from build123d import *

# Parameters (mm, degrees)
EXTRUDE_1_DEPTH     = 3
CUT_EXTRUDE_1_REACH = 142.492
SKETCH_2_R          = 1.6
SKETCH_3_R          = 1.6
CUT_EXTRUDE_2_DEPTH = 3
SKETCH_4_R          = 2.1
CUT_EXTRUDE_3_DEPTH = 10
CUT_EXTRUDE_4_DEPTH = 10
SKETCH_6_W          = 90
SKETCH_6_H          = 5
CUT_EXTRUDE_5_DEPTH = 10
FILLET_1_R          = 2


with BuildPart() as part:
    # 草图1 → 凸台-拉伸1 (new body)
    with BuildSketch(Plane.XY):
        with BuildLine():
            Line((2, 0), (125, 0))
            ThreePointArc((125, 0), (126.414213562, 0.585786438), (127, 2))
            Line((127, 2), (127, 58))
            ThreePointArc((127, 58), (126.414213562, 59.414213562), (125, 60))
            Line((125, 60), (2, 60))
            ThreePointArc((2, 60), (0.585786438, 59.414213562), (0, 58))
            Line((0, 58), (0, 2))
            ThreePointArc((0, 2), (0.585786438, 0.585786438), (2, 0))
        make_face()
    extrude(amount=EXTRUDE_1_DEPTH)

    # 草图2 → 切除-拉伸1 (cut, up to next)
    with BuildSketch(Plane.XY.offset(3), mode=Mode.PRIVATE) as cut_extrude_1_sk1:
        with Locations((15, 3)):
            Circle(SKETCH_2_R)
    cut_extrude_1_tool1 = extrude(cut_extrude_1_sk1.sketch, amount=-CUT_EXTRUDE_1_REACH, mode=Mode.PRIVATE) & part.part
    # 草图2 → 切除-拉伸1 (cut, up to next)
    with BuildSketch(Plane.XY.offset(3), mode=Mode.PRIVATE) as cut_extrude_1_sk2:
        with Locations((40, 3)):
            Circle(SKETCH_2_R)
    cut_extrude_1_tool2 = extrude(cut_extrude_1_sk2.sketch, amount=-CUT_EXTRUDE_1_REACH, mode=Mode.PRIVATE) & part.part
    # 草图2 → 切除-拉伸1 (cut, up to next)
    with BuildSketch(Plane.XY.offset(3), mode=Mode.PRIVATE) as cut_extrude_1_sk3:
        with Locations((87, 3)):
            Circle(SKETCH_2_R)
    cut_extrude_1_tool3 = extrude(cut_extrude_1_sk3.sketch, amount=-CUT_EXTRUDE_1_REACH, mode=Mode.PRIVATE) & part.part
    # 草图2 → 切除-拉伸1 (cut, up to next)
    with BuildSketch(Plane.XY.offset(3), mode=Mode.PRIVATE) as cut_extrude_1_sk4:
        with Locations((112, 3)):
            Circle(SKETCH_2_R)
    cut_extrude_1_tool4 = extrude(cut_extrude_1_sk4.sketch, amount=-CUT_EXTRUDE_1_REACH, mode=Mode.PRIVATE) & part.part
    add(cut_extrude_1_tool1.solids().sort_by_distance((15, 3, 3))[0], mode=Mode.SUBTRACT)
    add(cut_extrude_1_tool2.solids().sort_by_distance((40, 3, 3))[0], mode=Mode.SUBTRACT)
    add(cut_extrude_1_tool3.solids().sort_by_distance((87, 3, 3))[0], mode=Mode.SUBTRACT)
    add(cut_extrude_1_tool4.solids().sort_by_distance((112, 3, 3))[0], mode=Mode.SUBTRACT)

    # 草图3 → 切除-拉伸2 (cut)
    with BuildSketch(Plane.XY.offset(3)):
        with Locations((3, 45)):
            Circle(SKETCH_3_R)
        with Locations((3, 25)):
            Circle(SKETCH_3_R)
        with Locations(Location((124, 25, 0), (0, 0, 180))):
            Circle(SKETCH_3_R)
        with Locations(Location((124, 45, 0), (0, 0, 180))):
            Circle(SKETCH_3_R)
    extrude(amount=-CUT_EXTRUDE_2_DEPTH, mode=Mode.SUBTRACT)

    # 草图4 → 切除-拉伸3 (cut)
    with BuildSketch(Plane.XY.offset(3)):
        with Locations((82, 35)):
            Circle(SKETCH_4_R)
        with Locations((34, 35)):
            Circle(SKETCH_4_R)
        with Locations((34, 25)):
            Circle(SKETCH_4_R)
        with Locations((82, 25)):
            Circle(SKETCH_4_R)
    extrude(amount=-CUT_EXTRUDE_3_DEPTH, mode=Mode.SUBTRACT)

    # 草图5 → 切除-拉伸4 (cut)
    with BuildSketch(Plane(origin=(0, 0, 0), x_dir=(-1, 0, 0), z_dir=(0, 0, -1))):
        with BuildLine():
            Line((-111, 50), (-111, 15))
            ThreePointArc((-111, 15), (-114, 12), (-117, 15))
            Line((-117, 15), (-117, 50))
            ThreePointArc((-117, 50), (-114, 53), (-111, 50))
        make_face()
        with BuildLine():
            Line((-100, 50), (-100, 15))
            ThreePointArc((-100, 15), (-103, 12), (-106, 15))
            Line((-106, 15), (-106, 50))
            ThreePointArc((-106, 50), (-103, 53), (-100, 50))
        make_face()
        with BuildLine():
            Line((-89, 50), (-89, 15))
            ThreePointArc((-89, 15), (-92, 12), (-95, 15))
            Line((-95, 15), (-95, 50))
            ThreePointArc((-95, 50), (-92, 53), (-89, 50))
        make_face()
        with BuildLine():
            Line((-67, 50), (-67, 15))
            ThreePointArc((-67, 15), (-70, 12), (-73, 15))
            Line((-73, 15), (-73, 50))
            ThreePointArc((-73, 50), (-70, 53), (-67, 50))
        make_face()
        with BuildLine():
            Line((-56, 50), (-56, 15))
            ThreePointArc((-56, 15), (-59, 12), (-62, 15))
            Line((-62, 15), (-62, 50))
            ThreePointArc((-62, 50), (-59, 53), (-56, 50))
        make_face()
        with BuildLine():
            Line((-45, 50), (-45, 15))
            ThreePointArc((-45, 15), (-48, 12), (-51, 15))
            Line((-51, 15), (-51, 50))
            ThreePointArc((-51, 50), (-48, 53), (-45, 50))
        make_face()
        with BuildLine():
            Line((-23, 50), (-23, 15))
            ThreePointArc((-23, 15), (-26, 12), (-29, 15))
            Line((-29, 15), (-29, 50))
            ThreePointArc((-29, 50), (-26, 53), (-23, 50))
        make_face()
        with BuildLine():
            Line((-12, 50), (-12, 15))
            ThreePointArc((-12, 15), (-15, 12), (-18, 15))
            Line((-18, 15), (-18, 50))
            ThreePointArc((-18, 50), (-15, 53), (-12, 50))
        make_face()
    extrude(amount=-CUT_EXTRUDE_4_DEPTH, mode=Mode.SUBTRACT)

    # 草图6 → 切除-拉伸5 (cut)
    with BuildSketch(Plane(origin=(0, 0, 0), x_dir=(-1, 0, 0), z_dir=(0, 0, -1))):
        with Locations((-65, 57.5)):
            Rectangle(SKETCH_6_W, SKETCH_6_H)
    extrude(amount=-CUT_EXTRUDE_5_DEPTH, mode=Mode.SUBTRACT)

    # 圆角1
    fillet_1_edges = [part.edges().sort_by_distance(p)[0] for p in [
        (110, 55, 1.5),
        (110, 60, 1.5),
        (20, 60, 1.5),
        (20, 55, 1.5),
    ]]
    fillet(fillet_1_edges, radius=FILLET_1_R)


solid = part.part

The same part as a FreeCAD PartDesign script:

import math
import FreeCAD as App
import Part
import Sketcher
from FreeCAD import Vector
Q = App.Units.Quantity


def edges_at(feature, points):
    """Names of the edges that pass closest to the given points."""
    edges = feature.Shape.Edges
    near = lambda p: min(range(len(edges)), key=lambda i: edges[i].distToShape(Part.Vertex(*p))[0])
    return sorted({f"Edge{near(p) + 1}" for p in points})


def add_polygon(sketch, points):
    """Adds a closed chain of lines whose ends are joined by coincident constraints."""
    first, n = sketch.GeometryCount, len(points)
    for a, b in zip(points, points[1:] + points[:1]):
        sketch.addGeometry(Part.LineSegment(App.Vector(*a, 0), App.Vector(*b, 0)), False)
    for i in range(n):
        sketch.addConstraint(Sketcher.Constraint("Coincident", first + i, 2, first + (i + 1) % n, 1))

doc = App.newDocument("Part")
params = doc.addObject("Spreadsheet::Sheet", "Params")
for row, (alias, value) in enumerate([
    ("sketch1_radius", "2 mm"),
    ("sketch1_width", "123 mm"),
    ("sketch1_height", "56 mm"),
    ("pad1_length", "3 mm"),
    ("sketch2_diameter", "3.2 mm"),
    ("sketch3_diameter", "3.2 mm"),
    ("sketch4_diameter", "3.2 mm"),
    ("sketch5_diameter", "3.2 mm"),
    ("sketch6_diameter", "3.2 mm"),
    ("pocket5_length", "3 mm"),
    ("sketch7_diameter", "4.2 mm"),
    ("pocket6_length", "10 mm"),
    ("sketch8_radius", "3 mm"),
    ("sketch8_height", "35 mm"),
    ("pocket7_length", "10 mm"),
    ("sketch9_width", "90 mm"),
    ("sketch9_height", "5 mm"),
    ("pocket8_length", "10 mm"),
    ("fillet_radius", "2 mm"),
], start=1):
    params.set(f"A{row}", alias)
    params.set(f"B{row}", "=" + value)
    params.setAlias(f"B{row}", alias)

body = doc.addObject("PartDesign::Body", "Body")

sketch1 = body.newObject("Sketcher::SketchObject", "Sketch")
sketch1.AttachmentSupport = (doc.getObject("XY_Plane"), [""])
sketch1.MapMode = "FlatFace"
sketch1.addGeometry(Part.LineSegment(Vector(2, 0, 0), Vector(125, 0, 0)), False)
sketch1.addGeometry(Part.ArcOfCircle(Part.Circle(Vector(125, 2, 0), Vector(0, 0, 1), 2), math.radians(-90), math.radians(0)), False)
sketch1.addGeometry(Part.LineSegment(Vector(127, 2, 0), Vector(127, 58, 0)), False)
sketch1.addGeometry(Part.ArcOfCircle(Part.Circle(Vector(125, 58, 0), Vector(0, 0, 1), 2), math.radians(0), math.radians(90)), False)
sketch1.addGeometry(Part.LineSegment(Vector(125, 60, 0), Vector(2, 60, 0)), False)
sketch1.addGeometry(Part.ArcOfCircle(Part.Circle(Vector(2, 58, 0), Vector(0, 0, 1), 2), math.radians(90), math.radians(180)), False)
sketch1.addGeometry(Part.LineSegment(Vector(0, 58, 0), Vector(0, 2, 0)), False)
sketch1.addGeometry(Part.ArcOfCircle(Part.Circle(Vector(2, 2, 0), Vector(0, 0, 1), 2), math.radians(-180), math.radians(-90)), False)
sketch1.addConstraint(Sketcher.Constraint("Tangent", 0, 2, 1, 1))
sketch1.addConstraint(Sketcher.Constraint("Tangent", 1, 2, 2, 1))
sketch1.addConstraint(Sketcher.Constraint("Tangent", 2, 2, 3, 1))
sketch1.addConstraint(Sketcher.Constraint("Tangent", 3, 2, 4, 1))
sketch1.addConstraint(Sketcher.Constraint("Tangent", 4, 2, 5, 1))
sketch1.addConstraint(Sketcher.Constraint("Tangent", 5, 2, 6, 1))
sketch1.addConstraint(Sketcher.Constraint("Tangent", 6, 2, 7, 1))
sketch1.addConstraint(Sketcher.Constraint("Tangent", 7, 2, 0, 1))
sketch1.addConstraint(Sketcher.Constraint("Horizontal", 0))
sketch1.addConstraint(Sketcher.Constraint("Vertical", 2))
sketch1.addConstraint(Sketcher.Constraint("Horizontal", 4))
sketch1.addConstraint(Sketcher.Constraint("Vertical", 6))
sketch1.addConstraint(Sketcher.Constraint("Equal", 1, 3))
sketch1.addConstraint(Sketcher.Constraint("Equal", 3, 5))
sketch1.addConstraint(Sketcher.Constraint("Equal", 5, 7))
sketch1.addConstraint(Sketcher.Constraint("PointOnObject", 0, 2, -1))
sketch1.addConstraint(Sketcher.Constraint("PointOnObject", 5, 2, -2))
sketch1.addConstraint(Sketcher.Constraint("Radius", 1, Q("2 mm")))
sketch1.addConstraint(Sketcher.Constraint("DistanceX", 0, 1, 0, 2, Q("123 mm")))
sketch1.addConstraint(Sketcher.Constraint("DistanceY", 2, 1, 2, 2, Q("56 mm")))
sketch1.setExpression("Constraints[17]", "Params.sketch1_radius")
sketch1.setExpression("Constraints[18]", "Params.sketch1_width")
sketch1.setExpression("Constraints[19]", "Params.sketch1_height")
pad1 = body.newObject("PartDesign::Pad", "Pad")
pad1.Profile = sketch1
pad1.setExpression("Length", "Params.pad1_length")

sketch2 = body.newObject("Sketcher::SketchObject", "Sketch001")
sketch2.AttachmentSupport = (doc.getObject("XY_Plane"), [""])
sketch2.MapMode = "FlatFace"
sketch2.AttachmentOffset = App.Placement(Vector(0, 0, 3), App.Rotation())
sketch2.addGeometry(Part.Circle(Vector(15, 3, 0), Vector(0, 0, 1), 1.6), False)
sketch2.addConstraint(Sketcher.Constraint("Diameter", 0, Q("3.2 mm")))
sketch2.addConstraint(Sketcher.Constraint("DistanceX", -1, 1, 0, 3, Q("15 mm")))
sketch2.addConstraint(Sketcher.Constraint("DistanceY", -1, 1, 0, 3, Q("3 mm")))
sketch2.setExpression("Constraints[0]", "Params.sketch2_diameter")
pocket1 = body.newObject("PartDesign::Pocket", "Pocket")
pocket1.Profile = sketch2
pocket1.Type = "UpToFirst"

sketch3 = body.newObject("Sketcher::SketchObject", "Sketch002")
sketch3.AttachmentSupport = (doc.getObject("XY_Plane"), [""])
sketch3.MapMode = "FlatFace"
sketch3.AttachmentOffset = App.Placement(Vector(0, 0, 3), App.Rotation())
sketch3.addGeometry(Part.Circle(Vector(40, 3, 0), Vector(0, 0, 1), 1.6), False)
sketch3.addConstraint(Sketcher.Constraint("Diameter", 0, Q("3.2 mm")))
sketch3.addConstraint(Sketcher.Constraint("DistanceX", -1, 1, 0, 3, Q("40 mm")))
sketch3.addConstraint(Sketcher.Constraint("DistanceY", -1, 1, 0, 3, Q("3 mm")))
sketch3.setExpression("Constraints[0]", "Params.sketch3_diameter")
pocket2 = body.newObject("PartDesign::Pocket", "Pocket001")
pocket2.Profile = sketch3
pocket2.Type = "UpToFirst"

sketch4 = body.newObject("Sketcher::SketchObject", "Sketch003")
sketch4.AttachmentSupport = (doc.getObject("XY_Plane"), [""])
sketch4.MapMode = "FlatFace"
sketch4.AttachmentOffset = App.Placement(Vector(0, 0, 3), App.Rotation())
sketch4.addGeometry(Part.Circle(Vector(87, 3, 0), Vector(0, 0, 1), 1.6), False)
sketch4.addConstraint(Sketcher.Constraint("Diameter", 0, Q("3.2 mm")))
sketch4.addConstraint(Sketcher.Constraint("DistanceX", -1, 1, 0, 3, Q("87 mm")))
sketch4.addConstraint(Sketcher.Constraint("DistanceY", -1, 1, 0, 3, Q("3 mm")))
sketch4.setExpression("Constraints[0]", "Params.sketch4_diameter")
pocket3 = body.newObject("PartDesign::Pocket", "Pocket002")
pocket3.Profile = sketch4
pocket3.Type = "UpToFirst"

sketch5 = body.newObject("Sketcher::SketchObject", "Sketch004")
sketch5.AttachmentSupport = (doc.getObject("XY_Plane"), [""])
sketch5.MapMode = "FlatFace"
sketch5.AttachmentOffset = App.Placement(Vector(0, 0, 3), App.Rotation())
sketch5.addGeometry(Part.Circle(Vector(112, 3, 0), Vector(0, 0, 1), 1.6), False)
sketch5.addConstraint(Sketcher.Constraint("Diameter", 0, Q("3.2 mm")))
sketch5.addConstraint(Sketcher.Constraint("DistanceX", -1, 1, 0, 3, Q("112 mm")))
sketch5.addConstraint(Sketcher.Constraint("DistanceY", -1, 1, 0, 3, Q("3 mm")))
sketch5.setExpression("Constraints[0]", "Params.sketch5_diameter")
pocket4 = body.newObject("PartDesign::Pocket", "Pocket003")
pocket4.Profile = sketch5
pocket4.Type = "UpToFirst"

sketch6 = body.newObject("Sketcher::SketchObject", "Sketch005")
sketch6.AttachmentSupport = (doc.getObject("XY_Plane"), [""])
sketch6.MapMode = "FlatFace"
sketch6.AttachmentOffset = App.Placement(Vector(0, 0, 3), App.Rotation())
sketch6.addGeometry(Part.Circle(Vector(3, 45, 0), Vector(0, 0, 1), 1.6), False)
sketch6.addGeometry(Part.Circle(Vector(3, 25, 0), Vector(0, 0, 1), 1.6), False)
sketch6.addGeometry(Part.Circle(Vector(124, 25, 0), Vector(0, 0, 1), 1.6), False)
sketch6.addGeometry(Part.Circle(Vector(124, 45, 0), Vector(0, 0, 1), 1.6), False)
sketch6.addConstraint(Sketcher.Constraint("Equal", 0, 1))
sketch6.addConstraint(Sketcher.Constraint("Equal", 1, 2))
sketch6.addConstraint(Sketcher.Constraint("Equal", 2, 3))
sketch6.addConstraint(Sketcher.Constraint("Horizontal", 1, 3, 2, 3))
sketch6.addConstraint(Sketcher.Constraint("Horizontal", 0, 3, 3, 3))
sketch6.addConstraint(Sketcher.Constraint("Vertical", 0, 3, 1, 3))
sketch6.addConstraint(Sketcher.Constraint("Vertical", 2, 3, 3, 3))
sketch6.addConstraint(Sketcher.Constraint("Diameter", 0, Q("3.2 mm")))
sketch6.addConstraint(Sketcher.Constraint("DistanceX", -1, 1, 0, 3, Q("3 mm")))
sketch6.addConstraint(Sketcher.Constraint("DistanceY", -1, 1, 0, 3, Q("45 mm")))
sketch6.addConstraint(Sketcher.Constraint("DistanceY", -1, 1, 1, 3, Q("25 mm")))
sketch6.addConstraint(Sketcher.Constraint("DistanceX", -1, 1, 2, 3, Q("124 mm")))
sketch6.setExpression("Constraints[7]", "Params.sketch6_diameter")
pocket5 = body.newObject("PartDesign::Pocket", "Pocket004")
pocket5.Profile = sketch6
pocket5.setExpression("Length", "Params.pocket5_length")

sketch7 = body.newObject("Sketcher::SketchObject", "Sketch006")
sketch7.AttachmentSupport = (doc.getObject("XY_Plane"), [""])
sketch7.MapMode = "FlatFace"
sketch7.AttachmentOffset = App.Placement(Vector(0, 0, 3), App.Rotation())
sketch7.addGeometry(Part.Circle(Vector(82, 35, 0), Vector(0, 0, 1), 2.1), False)
sketch7.addGeometry(Part.Circle(Vector(34, 35, 0), Vector(0, 0, 1), 2.1), False)
sketch7.addGeometry(Part.Circle(Vector(34, 25, 0), Vector(0, 0, 1), 2.1), False)
sketch7.addGeometry(Part.Circle(Vector(82, 25, 0), Vector(0, 0, 1), 2.1), False)
sketch7.addConstraint(Sketcher.Constraint("Equal", 0, 1))
sketch7.addConstraint(Sketcher.Constraint("Equal", 1, 2))
sketch7.addConstraint(Sketcher.Constraint("Equal", 2, 3))
sketch7.addConstraint(Sketcher.Constraint("Horizontal", 0, 3, 1, 3))
sketch7.addConstraint(Sketcher.Constraint("Horizontal", 2, 3, 3, 3))
sketch7.addConstraint(Sketcher.Constraint("Vertical", 1, 3, 2, 3))
sketch7.addConstraint(Sketcher.Constraint("Vertical", 0, 3, 3, 3))
sketch7.addConstraint(Sketcher.Constraint("Diameter", 0, Q("4.2 mm")))
sketch7.addConstraint(Sketcher.Constraint("DistanceX", -1, 1, 0, 3, Q("82 mm")))
sketch7.addConstraint(Sketcher.Constraint("DistanceY", -1, 1, 0, 3, Q("35 mm")))
sketch7.addConstraint(Sketcher.Constraint("DistanceX", -1, 1, 1, 3, Q("34 mm")))
sketch7.addConstraint(Sketcher.Constraint("DistanceY", -1, 1, 2, 3, Q("25 mm")))
sketch7.setExpression("Constraints[7]", "Params.sketch7_diameter")
pocket6 = body.newObject("PartDesign::Pocket", "Pocket005")
pocket6.Profile = sketch7
pocket6.setExpression("Length", "Params.pocket6_length")

sketch8 = body.newObject("Sketcher::SketchObject", "Sketch007")
sketch8.AttachmentSupport = (doc.getObject("XY_Plane"), [""])
sketch8.MapMode = "FlatFace"
sketch8.addGeometry(Part.LineSegment(Vector(111, 15, 0), Vector(111, 50, 0)), False)
sketch8.addGeometry(Part.ArcOfCircle(Part.Circle(Vector(114, 50, 0), Vector(0, 0, 1), 3), math.radians(0), math.radians(180)), False)
sketch8.addGeometry(Part.LineSegment(Vector(117, 50, 0), Vector(117, 15, 0)), False)
sketch8.addGeometry(Part.ArcOfCircle(Part.Circle(Vector(114, 15, 0), Vector(0, 0, 1), 3), math.radians(180), math.radians(360)), False)
sketch8.addGeometry(Part.LineSegment(Vector(100, 15, 0), Vector(100, 50, 0)), False)
sketch8.addGeometry(Part.ArcOfCircle(Part.Circle(Vector(103, 50, 0), Vector(0, 0, 1), 3), math.radians(0), math.radians(180)), False)
sketch8.addGeometry(Part.LineSegment(Vector(106, 50, 0), Vector(106, 15, 0)), False)
sketch8.addGeometry(Part.ArcOfCircle(Part.Circle(Vector(103, 15, 0), Vector(0, 0, 1), 3), math.radians(180), math.radians(360)), False)
sketch8.addGeometry(Part.LineSegment(Vector(89, 15, 0), Vector(89, 50, 0)), False)
sketch8.addGeometry(Part.ArcOfCircle(Part.Circle(Vector(92, 50, 0), Vector(0, 0, 1), 3), math.radians(0), math.radians(180)), False)
sketch8.addGeometry(Part.LineSegment(Vector(95, 50, 0), Vector(95, 15, 0)), False)
sketch8.addGeometry(Part.ArcOfCircle(Part.Circle(Vector(92, 15, 0), Vector(0, 0, 1), 3), math.radians(180), math.radians(360)), False)
sketch8.addGeometry(Part.LineSegment(Vector(67, 15, 0), Vector(67, 50, 0)), False)
sketch8.addGeometry(Part.ArcOfCircle(Part.Circle(Vector(70, 50, 0), Vector(0, 0, 1), 3), math.radians(0), math.radians(180)), False)
sketch8.addGeometry(Part.LineSegment(Vector(73, 50, 0), Vector(73, 15, 0)), False)
sketch8.addGeometry(Part.ArcOfCircle(Part.Circle(Vector(70, 15, 0), Vector(0, 0, 1), 3), math.radians(180), math.radians(360)), False)
sketch8.addGeometry(Part.LineSegment(Vector(56, 15, 0), Vector(56, 50, 0)), False)
sketch8.addGeometry(Part.ArcOfCircle(Part.Circle(Vector(59, 50, 0), Vector(0, 0, 1), 3), math.radians(0), math.radians(180)), False)
sketch8.addGeometry(Part.LineSegment(Vector(62, 50, 0), Vector(62, 15, 0)), False)
sketch8.addGeometry(Part.ArcOfCircle(Part.Circle(Vector(59, 15, 0), Vector(0, 0, 1), 3), math.radians(180), math.radians(360)), False)
sketch8.addGeometry(Part.LineSegment(Vector(45, 15, 0), Vector(45, 50, 0)), False)
sketch8.addGeometry(Part.ArcOfCircle(Part.Circle(Vector(48, 50, 0), Vector(0, 0, 1), 3), math.radians(0), math.radians(180)), False)
sketch8.addGeometry(Part.LineSegment(Vector(51, 50, 0), Vector(51, 15, 0)), False)
sketch8.addGeometry(Part.ArcOfCircle(Part.Circle(Vector(48, 15, 0), Vector(0, 0, 1), 3), math.radians(180), math.radians(360)), False)
sketch8.addGeometry(Part.LineSegment(Vector(23, 15, 0), Vector(23, 50, 0)), False)
sketch8.addGeometry(Part.ArcOfCircle(Part.Circle(Vector(26, 50, 0), Vector(0, 0, 1), 3), math.radians(0), math.radians(180)), False)
sketch8.addGeometry(Part.LineSegment(Vector(29, 50, 0), Vector(29, 15, 0)), False)
sketch8.addGeometry(Part.ArcOfCircle(Part.Circle(Vector(26, 15, 0), Vector(0, 0, 1), 3), math.radians(180), math.radians(360)), False)
sketch8.addGeometry(Part.LineSegment(Vector(12, 15, 0), Vector(12, 50, 0)), False)
sketch8.addGeometry(Part.ArcOfCircle(Part.Circle(Vector(15, 50, 0), Vector(0, 0, 1), 3), math.radians(0), math.radians(180)), False)
sketch8.addGeometry(Part.LineSegment(Vector(18, 50, 0), Vector(18, 15, 0)), False)
sketch8.addGeometry(Part.ArcOfCircle(Part.Circle(Vector(15, 15, 0), Vector(0, 0, 1), 3), math.radians(180), math.radians(360)), False)
sketch8.addConstraint(Sketcher.Constraint("Tangent", 0, 2, 1, 2))
sketch8.addConstraint(Sketcher.Constraint("Tangent", 1, 1, 2, 1))
sketch8.addConstraint(Sketcher.Constraint("Tangent", 2, 2, 3, 2))
sketch8.addConstraint(Sketcher.Constraint("Tangent", 3, 1, 0, 1))
sketch8.addConstraint(Sketcher.Constraint("Tangent", 4, 2, 5, 2))
sketch8.addConstraint(Sketcher.Constraint("Tangent", 5, 1, 6, 1))
sketch8.addConstraint(Sketcher.Constraint("Tangent", 6, 2, 7, 2))
sketch8.addConstraint(Sketcher.Constraint("Tangent", 7, 1, 4, 1))
sketch8.addConstraint(Sketcher.Constraint("Tangent", 8, 2, 9, 2))
sketch8.addConstraint(Sketcher.Constraint("Tangent", 9, 1, 10, 1))
sketch8.addConstraint(Sketcher.Constraint("Tangent", 10, 2, 11, 2))
sketch8.addConstraint(Sketcher.Constraint("Tangent", 11, 1, 8, 1))
sketch8.addConstraint(Sketcher.Constraint("Tangent", 12, 2, 13, 2))
sketch8.addConstraint(Sketcher.Constraint("Tangent", 13, 1, 14, 1))
sketch8.addConstraint(Sketcher.Constraint("Tangent", 14, 2, 15, 2))
sketch8.addConstraint(Sketcher.Constraint("Tangent", 15, 1, 12, 1))
sketch8.addConstraint(Sketcher.Constraint("Tangent", 16, 2, 17, 2))
sketch8.addConstraint(Sketcher.Constraint("Tangent", 17, 1, 18, 1))
sketch8.addConstraint(Sketcher.Constraint("Tangent", 18, 2, 19, 2))
sketch8.addConstraint(Sketcher.Constraint("Tangent", 19, 1, 16, 1))
sketch8.addConstraint(Sketcher.Constraint("Tangent", 20, 2, 21, 2))
sketch8.addConstraint(Sketcher.Constraint("Tangent", 21, 1, 22, 1))
sketch8.addConstraint(Sketcher.Constraint("Tangent", 22, 2, 23, 2))
sketch8.addConstraint(Sketcher.Constraint("Tangent", 23, 1, 20, 1))
sketch8.addConstraint(Sketcher.Constraint("Tangent", 24, 2, 25, 2))
sketch8.addConstraint(Sketcher.Constraint("Tangent", 25, 1, 26, 1))
sketch8.addConstraint(Sketcher.Constraint("Tangent", 26, 2, 27, 2))
sketch8.addConstraint(Sketcher.Constraint("Tangent", 27, 1, 24, 1))
sketch8.addConstraint(Sketcher.Constraint("Tangent", 28, 2, 29, 2))
sketch8.addConstraint(Sketcher.Constraint("Tangent", 29, 1, 30, 1))
sketch8.addConstraint(Sketcher.Constraint("Tangent", 30, 2, 31, 2))
sketch8.addConstraint(Sketcher.Constraint("Tangent", 31, 1, 28, 1))
sketch8.addConstraint(Sketcher.Constraint("Vertical", 0))
sketch8.addConstraint(Sketcher.Constraint("Vertical", 2))
sketch8.addConstraint(Sketcher.Constraint("Vertical", 4))
sketch8.addConstraint(Sketcher.Constraint("Vertical", 6))
sketch8.addConstraint(Sketcher.Constraint("Vertical", 8))
sketch8.addConstraint(Sketcher.Constraint("Vertical", 10))
sketch8.addConstraint(Sketcher.Constraint("Vertical", 12))
sketch8.addConstraint(Sketcher.Constraint("Vertical", 14))
sketch8.addConstraint(Sketcher.Constraint("Vertical", 16))
sketch8.addConstraint(Sketcher.Constraint("Vertical", 18))
sketch8.addConstraint(Sketcher.Constraint("Vertical", 20))
sketch8.addConstraint(Sketcher.Constraint("Vertical", 22))
sketch8.addConstraint(Sketcher.Constraint("Vertical", 24))
sketch8.addConstraint(Sketcher.Constraint("Vertical", 26))
sketch8.addConstraint(Sketcher.Constraint("Vertical", 28))
sketch8.addConstraint(Sketcher.Constraint("Vertical", 30))
sketch8.addConstraint(Sketcher.Constraint("Equal", 3, 5))
sketch8.addConstraint(Sketcher.Constraint("Equal", 7, 9))
sketch8.addConstraint(Sketcher.Constraint("Equal", 11, 13))
sketch8.addConstraint(Sketcher.Constraint("Equal", 15, 17))
sketch8.addConstraint(Sketcher.Constraint("Equal", 19, 21))
sketch8.addConstraint(Sketcher.Constraint("Equal", 23, 25))
sketch8.addConstraint(Sketcher.Constraint("Equal", 27, 29))
sketch8.addConstraint(Sketcher.Constraint("Horizontal", 1, 3, 5, 3))
sketch8.addConstraint(Sketcher.Constraint("Horizontal", 3, 3, 7, 3))
sketch8.addConstraint(Sketcher.Constraint("Horizontal", 5, 3, 9, 3))
sketch8.addConstraint(Sketcher.Constraint("Horizontal", 7, 3, 11, 3))
sketch8.addConstraint(Sketcher.Constraint("Horizontal", 9, 3, 13, 3))
sketch8.addConstraint(Sketcher.Constraint("Horizontal", 11, 3, 15, 3))
sketch8.addConstraint(Sketcher.Constraint("Horizontal", 13, 3, 17, 3))
sketch8.addConstraint(Sketcher.Constraint("Horizontal", 15, 3, 19, 3))
sketch8.addConstraint(Sketcher.Constraint("Horizontal", 17, 3, 21, 3))
sketch8.addConstraint(Sketcher.Constraint("Horizontal", 19, 3, 23, 3))
sketch8.addConstraint(Sketcher.Constraint("Horizontal", 21, 3, 25, 3))
sketch8.addConstraint(Sketcher.Constraint("Horizontal", 23, 3, 27, 3))
sketch8.addConstraint(Sketcher.Constraint("Horizontal", 25, 3, 29, 3))
sketch8.addConstraint(Sketcher.Constraint("Horizontal", 27, 3, 31, 3))
sketch8.addConstraint(Sketcher.Constraint("Radius", 1, Q("3 mm")))
sketch8.addConstraint(Sketcher.Constraint("DistanceY", 0, 1, 0, 2, Q("35 mm")))
sketch8.addConstraint(Sketcher.Constraint("DistanceX", -1, 1, 1, 3, Q("114 mm")))
sketch8.addConstraint(Sketcher.Constraint("DistanceY", -1, 1, 1, 3, Q("50 mm")))
sketch8.addConstraint(Sketcher.Constraint("DistanceX", -1, 1, 5, 3, Q("103 mm")))
sketch8.addConstraint(Sketcher.Constraint("DistanceX", -1, 1, 9, 3, Q("92 mm")))
sketch8.addConstraint(Sketcher.Constraint("DistanceX", -1, 1, 13, 3, Q("70 mm")))
sketch8.addConstraint(Sketcher.Constraint("DistanceX", -1, 1, 17, 3, Q("59 mm")))
sketch8.addConstraint(Sketcher.Constraint("DistanceX", -1, 1, 21, 3, Q("48 mm")))
sketch8.addConstraint(Sketcher.Constraint("DistanceX", -1, 1, 25, 3, Q("26 mm")))
sketch8.addConstraint(Sketcher.Constraint("DistanceX", -1, 1, 29, 3, Q("15 mm")))
sketch8.setExpression("Constraints[69]", "Params.sketch8_radius")
sketch8.setExpression("Constraints[70]", "Params.sketch8_height")
pocket7 = body.newObject("PartDesign::Pocket", "Pocket006")
pocket7.Profile = sketch8
pocket7.setExpression("Length", "Params.pocket7_length")
pocket7.Reversed = True

sketch9 = body.newObject("Sketcher::SketchObject", "Sketch008")
sketch9.AttachmentSupport = (doc.getObject("XY_Plane"), [""])
sketch9.MapMode = "FlatFace"
add_polygon(sketch9, [(110, 60), (110, 55), (20, 55), (20, 60)])
sketch9.addConstraint(Sketcher.Constraint("Vertical", 0))
sketch9.addConstraint(Sketcher.Constraint("Horizontal", 1))
sketch9.addConstraint(Sketcher.Constraint("Vertical", 2))
sketch9.addConstraint(Sketcher.Constraint("Horizontal", 3))
sketch9.addConstraint(Sketcher.Constraint("DistanceX", 1, 2, 1, 1, Q("90 mm")))
sketch9.addConstraint(Sketcher.Constraint("DistanceY", 0, 2, 0, 1, Q("5 mm")))
sketch9.addConstraint(Sketcher.Constraint("DistanceX", -1, 1, 0, 2, Q("110 mm")))
sketch9.addConstraint(Sketcher.Constraint("DistanceY", -1, 1, 0, 2, Q("55 mm")))
sketch9.setExpression("Constraints[8]", "Params.sketch9_width")
sketch9.setExpression("Constraints[9]", "Params.sketch9_height")
pocket8 = body.newObject("PartDesign::Pocket", "Pocket007")
pocket8.Profile = sketch9
pocket8.setExpression("Length", "Params.pocket8_length")
pocket8.Reversed = True
doc.recompute()

fillet = body.newObject("PartDesign::Fillet", "Fillet")
fillet.Base = (pocket8, edges_at(pocket8, [
    (110, 55, 1.5),
    (110, 60, 1.5),
    (20, 60, 1.5),
    (20, 55, 1.5),
]))
fillet.setExpression("Radius", "Params.fillet_radius")

doc.recompute()
